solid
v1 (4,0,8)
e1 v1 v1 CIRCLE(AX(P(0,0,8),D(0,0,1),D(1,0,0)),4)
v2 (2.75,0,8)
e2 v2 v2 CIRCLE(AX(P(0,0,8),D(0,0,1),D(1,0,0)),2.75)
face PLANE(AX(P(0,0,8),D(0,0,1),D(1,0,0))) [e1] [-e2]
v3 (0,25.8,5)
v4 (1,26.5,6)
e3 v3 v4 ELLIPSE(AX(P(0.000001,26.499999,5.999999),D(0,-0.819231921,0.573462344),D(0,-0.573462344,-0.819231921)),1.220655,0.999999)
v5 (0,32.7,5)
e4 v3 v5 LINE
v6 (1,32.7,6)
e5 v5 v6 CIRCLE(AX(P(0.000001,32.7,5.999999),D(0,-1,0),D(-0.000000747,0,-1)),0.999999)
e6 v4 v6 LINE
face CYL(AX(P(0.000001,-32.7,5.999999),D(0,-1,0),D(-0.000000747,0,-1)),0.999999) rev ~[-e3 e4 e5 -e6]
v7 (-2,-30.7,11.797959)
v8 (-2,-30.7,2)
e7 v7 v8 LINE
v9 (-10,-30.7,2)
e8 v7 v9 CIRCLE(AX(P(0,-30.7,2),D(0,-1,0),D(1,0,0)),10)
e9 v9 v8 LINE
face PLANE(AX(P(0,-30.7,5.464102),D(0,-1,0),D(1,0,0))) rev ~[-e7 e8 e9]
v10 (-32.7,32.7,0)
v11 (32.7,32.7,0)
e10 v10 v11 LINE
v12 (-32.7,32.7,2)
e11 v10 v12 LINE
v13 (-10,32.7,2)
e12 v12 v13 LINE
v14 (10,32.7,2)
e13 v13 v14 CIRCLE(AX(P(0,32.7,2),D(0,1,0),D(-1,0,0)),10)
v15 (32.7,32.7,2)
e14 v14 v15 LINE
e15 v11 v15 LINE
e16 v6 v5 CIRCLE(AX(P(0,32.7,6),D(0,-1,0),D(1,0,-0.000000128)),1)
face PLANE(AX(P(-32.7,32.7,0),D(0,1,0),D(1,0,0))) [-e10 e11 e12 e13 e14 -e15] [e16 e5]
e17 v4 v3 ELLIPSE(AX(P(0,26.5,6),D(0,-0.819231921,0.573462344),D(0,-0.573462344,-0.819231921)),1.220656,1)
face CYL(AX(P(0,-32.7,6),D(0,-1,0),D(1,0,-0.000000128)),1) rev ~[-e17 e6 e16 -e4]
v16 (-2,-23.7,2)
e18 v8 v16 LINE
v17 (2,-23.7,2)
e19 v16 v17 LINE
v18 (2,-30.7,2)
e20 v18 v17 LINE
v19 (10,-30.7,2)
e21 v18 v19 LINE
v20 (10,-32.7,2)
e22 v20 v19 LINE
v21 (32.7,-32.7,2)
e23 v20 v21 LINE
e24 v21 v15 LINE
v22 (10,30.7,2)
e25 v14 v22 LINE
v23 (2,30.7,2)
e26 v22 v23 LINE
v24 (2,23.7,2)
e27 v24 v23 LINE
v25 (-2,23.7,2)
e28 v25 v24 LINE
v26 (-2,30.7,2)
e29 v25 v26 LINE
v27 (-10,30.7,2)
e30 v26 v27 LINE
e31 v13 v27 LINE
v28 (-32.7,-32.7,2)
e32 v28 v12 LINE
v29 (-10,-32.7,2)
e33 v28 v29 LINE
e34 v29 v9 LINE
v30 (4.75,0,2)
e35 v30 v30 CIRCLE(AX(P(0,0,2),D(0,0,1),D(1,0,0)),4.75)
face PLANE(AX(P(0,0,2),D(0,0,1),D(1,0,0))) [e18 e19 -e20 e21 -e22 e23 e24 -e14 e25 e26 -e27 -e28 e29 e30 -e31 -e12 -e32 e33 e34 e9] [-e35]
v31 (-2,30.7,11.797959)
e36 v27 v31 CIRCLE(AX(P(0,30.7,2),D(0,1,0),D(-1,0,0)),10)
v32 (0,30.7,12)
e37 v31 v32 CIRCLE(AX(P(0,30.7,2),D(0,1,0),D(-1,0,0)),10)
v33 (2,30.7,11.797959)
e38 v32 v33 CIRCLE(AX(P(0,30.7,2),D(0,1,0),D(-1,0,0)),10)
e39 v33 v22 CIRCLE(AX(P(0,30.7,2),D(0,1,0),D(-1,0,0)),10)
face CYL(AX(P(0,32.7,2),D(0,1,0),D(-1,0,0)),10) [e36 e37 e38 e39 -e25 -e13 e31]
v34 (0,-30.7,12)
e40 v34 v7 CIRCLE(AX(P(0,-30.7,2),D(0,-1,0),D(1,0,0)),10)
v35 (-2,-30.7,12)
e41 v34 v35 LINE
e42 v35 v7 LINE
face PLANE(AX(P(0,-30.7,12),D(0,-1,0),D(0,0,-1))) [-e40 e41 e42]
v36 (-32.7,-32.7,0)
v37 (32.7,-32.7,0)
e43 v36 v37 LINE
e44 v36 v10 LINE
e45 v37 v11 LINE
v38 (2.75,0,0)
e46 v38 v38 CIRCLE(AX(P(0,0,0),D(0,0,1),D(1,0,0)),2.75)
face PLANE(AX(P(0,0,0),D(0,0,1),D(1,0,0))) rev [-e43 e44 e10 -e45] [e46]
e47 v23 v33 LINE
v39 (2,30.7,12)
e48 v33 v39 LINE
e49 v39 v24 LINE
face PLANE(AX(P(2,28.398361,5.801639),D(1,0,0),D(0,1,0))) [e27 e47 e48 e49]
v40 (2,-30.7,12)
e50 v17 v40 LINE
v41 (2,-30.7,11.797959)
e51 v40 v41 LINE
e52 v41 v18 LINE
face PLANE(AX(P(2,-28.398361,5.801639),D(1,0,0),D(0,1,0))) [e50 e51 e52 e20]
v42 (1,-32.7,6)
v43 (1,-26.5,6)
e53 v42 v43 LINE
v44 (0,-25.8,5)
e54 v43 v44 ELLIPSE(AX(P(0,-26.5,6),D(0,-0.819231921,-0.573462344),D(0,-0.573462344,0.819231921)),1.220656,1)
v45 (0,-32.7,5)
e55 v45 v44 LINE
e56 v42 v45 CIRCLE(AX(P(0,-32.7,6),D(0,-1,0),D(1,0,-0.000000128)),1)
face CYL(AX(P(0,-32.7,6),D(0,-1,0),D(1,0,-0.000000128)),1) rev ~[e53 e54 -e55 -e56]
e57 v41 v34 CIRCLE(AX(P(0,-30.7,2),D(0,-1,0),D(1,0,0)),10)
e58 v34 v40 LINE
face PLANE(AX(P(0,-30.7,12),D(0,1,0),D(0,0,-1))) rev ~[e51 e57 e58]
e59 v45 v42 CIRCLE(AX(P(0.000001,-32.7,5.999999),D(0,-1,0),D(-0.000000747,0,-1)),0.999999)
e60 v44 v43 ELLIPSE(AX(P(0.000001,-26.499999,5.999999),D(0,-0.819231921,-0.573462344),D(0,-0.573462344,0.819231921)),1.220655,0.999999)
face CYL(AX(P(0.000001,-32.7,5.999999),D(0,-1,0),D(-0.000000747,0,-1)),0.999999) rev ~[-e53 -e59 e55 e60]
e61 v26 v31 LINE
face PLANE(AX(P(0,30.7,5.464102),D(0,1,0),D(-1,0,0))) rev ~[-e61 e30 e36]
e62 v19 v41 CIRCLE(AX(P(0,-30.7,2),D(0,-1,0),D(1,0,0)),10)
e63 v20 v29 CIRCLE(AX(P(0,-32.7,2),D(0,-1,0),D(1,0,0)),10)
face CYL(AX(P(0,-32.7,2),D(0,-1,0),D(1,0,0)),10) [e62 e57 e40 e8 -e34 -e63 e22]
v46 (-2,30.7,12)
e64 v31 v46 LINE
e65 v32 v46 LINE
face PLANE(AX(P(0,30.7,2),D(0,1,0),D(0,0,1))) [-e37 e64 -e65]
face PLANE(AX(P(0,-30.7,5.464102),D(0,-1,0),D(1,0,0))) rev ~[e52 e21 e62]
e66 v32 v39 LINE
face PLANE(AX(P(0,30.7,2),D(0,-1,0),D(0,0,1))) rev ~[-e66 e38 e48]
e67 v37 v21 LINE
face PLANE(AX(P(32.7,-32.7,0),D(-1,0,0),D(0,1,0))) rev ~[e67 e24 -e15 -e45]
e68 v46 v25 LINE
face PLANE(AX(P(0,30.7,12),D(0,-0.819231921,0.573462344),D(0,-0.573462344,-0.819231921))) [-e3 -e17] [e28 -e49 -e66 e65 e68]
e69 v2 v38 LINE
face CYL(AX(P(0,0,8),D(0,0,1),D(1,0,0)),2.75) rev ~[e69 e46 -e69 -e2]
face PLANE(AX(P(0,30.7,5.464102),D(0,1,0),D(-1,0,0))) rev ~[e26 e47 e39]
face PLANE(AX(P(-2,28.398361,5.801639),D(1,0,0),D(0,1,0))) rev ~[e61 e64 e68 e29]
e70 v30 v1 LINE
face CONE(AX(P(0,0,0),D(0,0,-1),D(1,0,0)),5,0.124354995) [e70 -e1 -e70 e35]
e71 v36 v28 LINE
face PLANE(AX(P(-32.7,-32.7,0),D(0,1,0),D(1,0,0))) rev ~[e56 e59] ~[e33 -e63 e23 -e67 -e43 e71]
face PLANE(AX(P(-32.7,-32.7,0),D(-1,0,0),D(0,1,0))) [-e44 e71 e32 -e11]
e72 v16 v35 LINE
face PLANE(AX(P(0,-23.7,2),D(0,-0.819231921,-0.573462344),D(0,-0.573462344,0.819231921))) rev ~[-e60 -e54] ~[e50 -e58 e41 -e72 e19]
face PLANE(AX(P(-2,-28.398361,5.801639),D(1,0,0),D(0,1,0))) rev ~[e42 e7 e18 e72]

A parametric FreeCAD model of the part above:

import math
import FreeCAD as App
import Part
import Sketcher


def add_polygon(sketch, points):
    """Adds a closed chain of lines whose ends are joined by coincident constraints."""
    first, n = sketch.GeometryCount, len(points)
    for a, b in zip(points, points[1:] + points[:1]):
        sketch.addGeometry(Part.LineSegment(App.Vector(*a, 0), App.Vector(*b, 0)), False)
    for i in range(n):
        sketch.addConstraint(Sketcher.Constraint("Coincident", first + i, 2, first + (i + 1) % n, 1))

doc = App.newDocument("Part")
body = doc.addObject("PartDesign::Body", "Body")

# Sketch on XY plane
sketch1 = body.newObject("Sketcher::SketchObject", "Sketch")
sketch1.AttachmentSupport = (doc.getObject("XY_Plane"), [""])
sketch1.MapMode = "FlatFace"
add_polygon(sketch1, [(-33, 33), (-33, -33), (33, -33), (33, 33)])  # lines 0-3
sketch1.addConstraint(Sketcher.Constraint("Vertical", 0))
sketch1.addConstraint(Sketcher.Constraint("Horizontal", 1))
sketch1.addConstraint(Sketcher.Constraint("Vertical", 2))
sketch1.addConstraint(Sketcher.Constraint("Horizontal", 3))
sketch1.addConstraint(Sketcher.Constraint("Symmetric", 0, 2, 2, 2, -1, 1))
sketch1.addConstraint(Sketcher.Constraint("Equal", 3, 0))
sketch1.addConstraint(Sketcher.Constraint("DistanceX", 1, 1, 1, 2, 65.4))
pad1 = body.newObject("PartDesign::Pad", "Pad")
pad1.Profile = sketch1
pad1.Length = 2

# Sketch on XZ plane
sketch2 = body.newObject("Sketcher::SketchObject", "Sketch001")
sketch2.AttachmentSupport = (doc.getObject("XZ_Plane"), [""])
sketch2.MapMode = "FlatFace"
sketch2.AttachmentOffset = App.Placement(App.Vector(0, 0, 32.7), App.Rotation())
sketch2.addGeometry(Part.LineSegment(App.Vector(-10, 2, 0), App.Vector(10, 2, 0)), False)
sketch2.addGeometry(Part.ArcOfCircle(Part.Circle(App.Vector(0, 2, 0), App.Vector(0, 0, 1), 10), math.radians(0), math.radians(180)), False)
sketch2.addConstraint(Sketcher.Constraint("Coincident", 0, 1, 1, 2))
sketch2.addConstraint(Sketcher.Constraint("Coincident", 1, 1, 0, 2))
sketch2.addConstraint(Sketcher.Constraint("Horizontal", 0))
sketch2.addConstraint(Sketcher.Constraint("PointOnObject", 1, 3, -2))
sketch2.addConstraint(Sketcher.Constraint("Horizontal", 1, 3, 0, 1))
sketch2.addConstraint(Sketcher.Constraint("Radius", 1, 10.0))
sketch2.addConstraint(Sketcher.Constraint("DistanceY", -1, 1, 1, 3, 2.0))
pad2 = body.newObject("PartDesign::Pad", "Pad001")
pad2.Profile = sketch2
pad2.Length = 2
pad2.Reversed = True

# Sketch on XZ plane
sketch3 = body.newObject("Sketcher::SketchObject", "Sketch002")
sketch3.AttachmentSupport = (doc.getObject("XZ_Plane"), [""])
sketch3.MapMode = "FlatFace"
sketch3.AttachmentOffset = App.Placement(App.Vector(0, 0, -32.7), App.Rotation())
sketch3.addGeometry(Part.LineSegment(App.Vector(10, 2, 0), App.Vector(-10, 2, 0)), False)
sketch3.addGeometry(Part.ArcOfCircle(Part.Circle(App.Vector(0, 2, 0), App.Vector(0, 0, 1), 10), math.radians(0), math.radians(180)), False)
sketch3.addConstraint(Sketcher.Constraint("Coincident", 0, 1, 1, 1))
sketch3.addConstraint(Sketcher.Constraint("Coincident", 1, 2, 0, 2))
sketch3.addConstraint(Sketcher.Constraint("Horizontal", 0))
sketch3.addConstraint(Sketcher.Constraint("PointOnObject", 1, 3, -2))
sketch3.addConstraint(Sketcher.Constraint("Horizontal", 1, 3, 0, 1))
sketch3.addConstraint(Sketcher.Constraint("Radius", 1, 10.0))
sketch3.addConstraint(Sketcher.Constraint("DistanceY", -1, 1, 1, 3, 2.0))
pad3 = body.newObject("PartDesign::Pad", "Pad002")
pad3.Profile = sketch3
pad3.Length = 2

# Sketch on YZ plane
sketch4 = body.newObject("Sketcher::SketchObject", "Sketch003")
sketch4.AttachmentSupport = (doc.getObject("YZ_Plane"), [""])
sketch4.MapMode = "FlatFace"
add_polygon(sketch4, [(24, 2), (31, 2), (31, 12)])  # lines 0-2
add_polygon(sketch4, [(-24, 2), (-31, 12), (-31, 2)])  # lines 3-5
sketch4.addConstraint(Sketcher.Constraint("Horizontal", 0))
sketch4.addConstraint(Sketcher.Constraint("Vertical", 1))
sketch4.addConstraint(Sketcher.Constraint("Vertical", 4))
sketch4.addConstraint(Sketcher.Constraint("Horizontal", 5))
sketch4.addConstraint(Sketcher.Constraint("Symmetric", 1, 2, 3, 2, -2))
sketch4.addConstraint(Sketcher.Constraint("Symmetric", 2, 2, 5, 2, -2))
sketch4.addConstraint(Sketcher.Constraint("DistanceX", 0, 1, 0, 2, 7.0))
sketch4.addConstraint(Sketcher.Constraint("DistanceY", 1, 1, 1, 2, 10.0))
sketch4.addConstraint(Sketcher.Constraint("DistanceY", -1, 1, 0, 2, 2.0))
sketch4.addConstraint(Sketcher.Constraint("DistanceX", -1, 1, 0, 2, 30.7))
pad4 = body.newObject("PartDesign::Pad", "Pad003")
pad4.Profile = sketch4
pad4.Type = "TwoLengths"
pad4.Length = 2
pad4.Length2 = 2

# Sketch on XZ plane
sketch5 = body.newObject("Sketcher::SketchObject", "Sketch004")
sketch5.AttachmentSupport = (doc.getObject("XZ_Plane"), [""])
sketch5.MapMode = "FlatFace"
sketch5.AttachmentOffset = App.Placement(App.Vector(0, 0, 32.7), App.Rotation())
sketch5.addGeometry(Part.ArcOfCircle(Part.Circle(App.Vector(0, 6, 0), App.Vector(0, 0, 1), 1), math.radians(-90), math.radians(0)), False)
sketch5.addGeometry(Part.ArcOfCircle(Part.Circle(App.Vector(0, 6, 0), App.Vector(0, 0, 1), 1), math.radians(0), math.radians(270)), False)
sketch5.addConstraint(Sketcher.Constraint("Tangent", 0, 1, 1, 2))
sketch5.addConstraint(Sketcher.Constraint("Coincident", 1, 1, 0, 2))
sketch5.addConstraint(Sketcher.Constraint("PointOnObject", 0, 3, -2))
sketch5.addConstraint(Sketcher.Constraint("PointOnObject", 0, 1, -2))
sketch5.addConstraint(Sketcher.Constraint("Horizontal", 0, 3, 1, 1))
sketch5.addConstraint(Sketcher.Constraint("Radius", 0, 0.999999))
sketch5.addConstraint(Sketcher.Constraint("DistanceY", -1, 1, 0, 3, 5.999999))
pocket1 = body.newObject("PartDesign::Pocket", "Pocket")
pocket1.Profile = sketch5
pocket1.Type = "ThroughAll"

# Sketch on XZ plane
sketch6 = body.newObject("Sketcher::SketchObject", "Sketch005")
sketch6.AttachmentSupport = (doc.getObject("XZ_Plane"), [""])
sketch6.MapMode = "FlatFace"
add_polygon(sketch6, [(0, 8), (0, 0), (5, 0), (4, 8)])  # lines 0-3
sketch6.addConstraint(Sketcher.Constraint("Vertical", 0))
sketch6.addConstraint(Sketcher.Constraint("Horizontal", 1))
sketch6.addConstraint(Sketcher.Constraint("Horizontal", 3))
sketch6.addConstraint(Sketcher.Constraint("Coincident", 0, 2, -1, 1))
sketch6.addConstraint(Sketcher.Constraint("DistanceX", 1, 1, 1, 2, 5.0))
sketch6.addConstraint(Sketcher.Constraint("DistanceX", 3, 2, 3, 1, 4.0))
sketch6.addConstraint(Sketcher.Constraint("DistanceY", 0, 2, 0, 1, 8.0))
revolution = body.newObject("PartDesign::Revolution", "Revolution")
revolution.Profile = sketch6
revolution.ReferenceAxis = (sketch6, ["V_Axis"])
revolution.Angle = 360

# Sketch on XY plane
sketch7 = body.newObject("Sketcher::SketchObject", "Sketch006")
sketch7.AttachmentSupport = (doc.getObject("XY_Plane"), [""])
sketch7.MapMode = "FlatFace"
sketch7.AttachmentOffset = App.Placement(App.Vector(0, 0, 8), App.Rotation())
sketch7.addGeometry(Part.Circle(App.Vector(0, 0, 0), App.Vector(0, 0, 1), 2.8), False)
sketch7.addConstraint(Sketcher.Constraint("Coincident", 0, 3, -1, 1))
sketch7.addConstraint(Sketcher.Constraint("Diameter", 0, 5.5))
pocket2 = body.newObject("PartDesign::Pocket", "Pocket001")
pocket2.Profile = sketch7
pocket2.Type = "ThroughAll"

doc.recompute()
